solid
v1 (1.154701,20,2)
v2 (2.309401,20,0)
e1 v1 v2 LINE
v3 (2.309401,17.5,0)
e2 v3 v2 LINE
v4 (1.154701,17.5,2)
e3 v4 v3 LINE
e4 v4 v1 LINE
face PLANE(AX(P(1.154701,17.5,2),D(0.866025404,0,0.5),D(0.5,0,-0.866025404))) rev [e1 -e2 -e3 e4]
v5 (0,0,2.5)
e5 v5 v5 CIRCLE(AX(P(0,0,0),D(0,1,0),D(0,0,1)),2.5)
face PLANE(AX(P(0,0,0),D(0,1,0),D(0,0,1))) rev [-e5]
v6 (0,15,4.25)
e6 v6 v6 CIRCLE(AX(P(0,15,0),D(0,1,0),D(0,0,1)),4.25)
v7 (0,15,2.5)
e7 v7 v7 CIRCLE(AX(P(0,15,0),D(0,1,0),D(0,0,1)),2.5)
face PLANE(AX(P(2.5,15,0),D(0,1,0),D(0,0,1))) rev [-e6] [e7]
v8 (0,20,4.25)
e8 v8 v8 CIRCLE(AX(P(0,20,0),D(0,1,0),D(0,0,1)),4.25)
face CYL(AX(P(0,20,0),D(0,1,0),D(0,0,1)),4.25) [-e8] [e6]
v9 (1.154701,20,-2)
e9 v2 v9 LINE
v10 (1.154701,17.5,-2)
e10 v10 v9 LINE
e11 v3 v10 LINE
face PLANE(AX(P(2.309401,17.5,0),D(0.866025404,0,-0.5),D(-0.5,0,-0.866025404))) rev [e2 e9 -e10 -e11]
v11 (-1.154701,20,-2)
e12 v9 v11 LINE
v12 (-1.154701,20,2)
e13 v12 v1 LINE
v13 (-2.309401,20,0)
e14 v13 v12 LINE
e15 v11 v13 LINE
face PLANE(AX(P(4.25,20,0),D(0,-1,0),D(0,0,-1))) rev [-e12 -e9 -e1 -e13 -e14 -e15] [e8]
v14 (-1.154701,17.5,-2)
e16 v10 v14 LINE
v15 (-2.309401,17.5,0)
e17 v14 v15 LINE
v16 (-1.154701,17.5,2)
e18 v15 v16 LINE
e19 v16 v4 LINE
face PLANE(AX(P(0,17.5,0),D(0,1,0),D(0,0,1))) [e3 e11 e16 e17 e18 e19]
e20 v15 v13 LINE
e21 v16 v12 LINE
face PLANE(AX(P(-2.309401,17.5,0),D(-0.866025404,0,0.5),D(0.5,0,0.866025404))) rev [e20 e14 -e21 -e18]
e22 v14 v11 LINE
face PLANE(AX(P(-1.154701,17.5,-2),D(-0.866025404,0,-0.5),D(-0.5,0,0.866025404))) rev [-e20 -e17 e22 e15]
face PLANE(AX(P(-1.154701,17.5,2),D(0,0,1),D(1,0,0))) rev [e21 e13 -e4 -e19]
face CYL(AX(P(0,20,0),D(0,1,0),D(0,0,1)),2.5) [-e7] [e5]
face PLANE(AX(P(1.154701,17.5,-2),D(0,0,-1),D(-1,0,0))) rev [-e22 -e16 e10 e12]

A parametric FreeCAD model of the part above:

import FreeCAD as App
import Part
import Sketcher
Q = App.Units.Quantity

doc = App.newDocument("Part")
params = doc.addObject("Spreadsheet::Sheet", "Params")
for row, (alias, value) in enumerate([
    ("sketch1_height", "15 mm"),
    ("sketch1_height2", "5 mm"),
    ("sketch1_width", "2.5 mm"),
    ("sketch1_width2", "1.75 mm"),
    ("revolution_angle", "360 deg"),
    ("pocket1_length", "2.5 mm"),
], start=1):
    params.set(f"A{row}", alias)
    params.set(f"B{row}", "=" + value)
    params.setAlias(f"B{row}", alias)

body = doc.addObject("PartDesign::Body", "Body")

# Sketch on XY plane
sketch1 = body.newObject("Sketcher::SketchObject", "Sketch")
sketch1.AttachmentSupport = (doc.getObject("XY_Plane"), [""])
sketch1.MapMode = "FlatFace"
sketch1.addGeometry([
    Part.LineSegment(App.Vector(0, 0, 0), App.Vector(2.5, 0, 0)),  # 0
    Part.LineSegment(App.Vector(2.5, 0, 0), App.Vector(2.5, 15, 0)),  # 1
    Part.LineSegment(App.Vector(2.5, 15, 0), App.Vector(4.25, 15, 0)),  # 2
    Part.LineSegment(App.Vector(4.25, 15, 0), App.Vector(4.25, 20, 0)),  # 3
    Part.LineSegment(App.Vector(4.25, 20, 0), App.Vector(0, 20, 0)),  # 4
    Part.LineSegment(App.Vector(0, 20, 0), App.Vector(0, 0, 0)),  # 5
], False)
sketch1.addConstraint([
    Sketcher.Constraint("Coincident", 0, 2, 1, 1),
    Sketcher.Constraint("Coincident", 1, 2, 2, 1),
    Sketcher.Constraint("Coincident", 2, 2, 3, 1),
    Sketcher.Constraint("Coincident", 3, 2, 4, 1),
    Sketcher.Constraint("Coincident", 4, 2, 5, 1),
    Sketcher.Constraint("Coincident", 5, 2, 0, 1),
    Sketcher.Constraint("Horizontal", 0),
    Sketcher.Constraint("Vertical", 1),
    Sketcher.Constraint("Horizontal", 2),
    Sketcher.Constraint("Vertical", 3),
    Sketcher.Constraint("Horizontal", 4),
    Sketcher.Constraint("Vertical", 5),
    Sketcher.Constraint("Coincident", 5, 2, -1, 1),
    Sketcher.Constraint("DistanceY", 1, 1, 1, 2, 15.0),
    Sketcher.Constraint("DistanceY", 3, 1, 3, 2, 5.0),
    Sketcher.Constraint("DistanceX", 0, 1, 0, 2, 2.5),
    Sketcher.Constraint("DistanceX", 2, 1, 2, 2, 1.75),
])
sketch1.setExpression("Constraints[13]", "Params.sketch1_height")
sketch1.setExpression("Constraints[14]", "Params.sketch1_height2")
sketch1.setExpression("Constraints[15]", "Params.sketch1_width")
sketch1.setExpression("Constraints[16]", "Params.sketch1_width2")
revolution = body.newObject("PartDesign::Revolution", "Revolution")
revolution.Profile = sketch1
revolution.ReferenceAxis = (sketch1, ["V_Axis"])
revolution.setExpression("Angle", "Params.revolution_angle")

# Sketch on XZ plane
sketch2 = body.newObject("Sketcher::SketchObject", "Sketch001")
sketch2.AttachmentSupport = (doc.getObject("XZ_Plane"), [""])
sketch2.MapMode = "FlatFace"
sketch2.AttachmentOffset = App.Placement(App.Vector(0, 0, -20), App.Rotation())
sketch2.addGeometry([
    Part.LineSegment(App.Vector(1.154701, -2, 0), App.Vector(-1.154701, -2, 0)),  # 0
    Part.LineSegment(App.Vector(-1.154701, -2, 0), App.Vector(-2.309401, 0, 0)),  # 1
    Part.LineSegment(App.Vector(-2.309401, 0, 0), App.Vector(-1.154701, 2, 0)),  # 2
    Part.LineSegment(App.Vector(-1.154701, 2, 0), App.Vector(1.154701, 2, 0)),  # 3
    Part.LineSegment(App.Vector(1.154701, 2, 0), App.Vector(2.309401, 0, 0)),  # 4
    Part.LineSegment(App.Vector(2.309401, 0, 0), App.Vector(1.154701, -2, 0)),  # 5
], False)
sketch2.addConstraint([
    Sketcher.Constraint("Coincident", 0, 2, 1, 1),
    Sketcher.Constraint("Coincident", 1, 2, 2, 1),
    Sketcher.Constraint("Coincident", 2, 2, 3, 1),
    Sketcher.Constraint("Coincident", 3, 2, 4, 1),
    Sketcher.Constraint("Coincident", 4, 2, 5, 1),
    Sketcher.Constraint("Coincident", 5, 2, 0, 1),
    Sketcher.Constraint("Horizontal", 0),
    Sketcher.Constraint("Horizontal", 3),
    Sketcher.Constraint("Symmetric", 0, 2, 3, 2, -1, 1),
    Sketcher.Constraint("Symmetric", 1, 2, 4, 2, -1, 1),
    Sketcher.Constraint("PointOnObject", 1, 2, -1),
    Sketcher.Constraint("Parallel", 2, 5),
    Sketcher.Constraint("Vertical", 0, 2, 2, 2),
    Sketcher.Constraint("Angle", 1, Q("120 deg")),
    Sketcher.Constraint("DistanceY", 0, 2, -1, 1, 2.0),
    Sketcher.Constraint("DistanceX", 0, 2, 0, 1, 2.309401),
])
pocket1 = body.newObject("PartDesign::Pocket", "Pocket")
pocket1.Profile = sketch2
pocket1.setExpression("Length", "Params.pocket1_length")
pocket1.Reversed = True

doc.recompute()
